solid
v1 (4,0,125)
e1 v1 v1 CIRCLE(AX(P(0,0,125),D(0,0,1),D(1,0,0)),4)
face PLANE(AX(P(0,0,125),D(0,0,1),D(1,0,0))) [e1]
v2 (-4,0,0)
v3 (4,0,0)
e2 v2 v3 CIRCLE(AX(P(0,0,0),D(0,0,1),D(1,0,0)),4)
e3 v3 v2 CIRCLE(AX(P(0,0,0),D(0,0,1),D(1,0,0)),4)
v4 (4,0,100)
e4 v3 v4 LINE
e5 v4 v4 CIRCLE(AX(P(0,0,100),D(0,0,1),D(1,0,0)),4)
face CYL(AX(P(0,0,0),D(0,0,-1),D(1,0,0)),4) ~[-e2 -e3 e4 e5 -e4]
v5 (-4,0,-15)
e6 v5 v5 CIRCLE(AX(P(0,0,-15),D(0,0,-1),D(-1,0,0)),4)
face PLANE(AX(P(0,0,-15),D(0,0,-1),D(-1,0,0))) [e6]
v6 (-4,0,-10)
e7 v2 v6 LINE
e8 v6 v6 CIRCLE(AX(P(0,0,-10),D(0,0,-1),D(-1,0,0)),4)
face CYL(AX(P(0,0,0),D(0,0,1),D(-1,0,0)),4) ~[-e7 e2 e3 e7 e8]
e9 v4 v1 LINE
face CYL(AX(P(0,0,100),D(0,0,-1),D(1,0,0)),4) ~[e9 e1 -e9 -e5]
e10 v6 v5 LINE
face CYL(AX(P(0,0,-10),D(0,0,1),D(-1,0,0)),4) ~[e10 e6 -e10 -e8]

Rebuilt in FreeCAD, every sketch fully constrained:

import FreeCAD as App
import Part
import Sketcher

doc = App.newDocument("Part")
body = doc.addObject("PartDesign::Body", "Body")

# Sketch on XY plane
sketch1 = doc.addObject("Sketcher::SketchObject", "Sketch")
body.addObject(sketch1)
sketch1.AttachmentSupport = (doc.XY_Plane, [""])
sketch1.MapMode = "FlatFace"
sketch1.addGeometry(Part.Circle(App.Vector(0, 0, 0), App.Vector(0, 0, 1), 4), False)
sketch1.addConstraint(Sketcher.Constraint("Coincident", 0, 3, -1, 1))
sketch1.addConstraint(Sketcher.Constraint("Diameter", 0, 8.0))
pad1 = doc.addObject("PartDesign::Pad", "Pad")
body.addObject(pad1)
pad1.Profile = sketch1
pad1.Length = 100

# Sketch on XY plane
sketch2 = doc.addObject("Sketcher::SketchObject", "Sketch001")
body.addObject(sketch2)
sketch2.AttachmentSupport = (doc.XY_Plane, [""])
sketch2.MapMode = "FlatFace"
sketch2.addGeometry(Part.Circle(App.Vector(0, 0, 0), App.Vector(0, 0, 1), 4), False)
sketch2.addConstraint(Sketcher.Constraint("Coincident", 0, 3, -1, 1))
sketch2.addConstraint(Sketcher.Constraint("Diameter", 0, 8.0))
pad2 = doc.addObject("PartDesign::Pad", "Pad001")
body.addObject(pad2)
pad2.Profile = sketch2
pad2.Length = 10
pad2.Reversed = True

# Sketch on XY plane
sketch3 = doc.addObject("Sketcher::SketchObject", "Sketch002")
body.addObject(sketch3)
sketch3.AttachmentSupport = (doc.XY_Plane, [""])
sketch3.MapMode = "FlatFace"
sketch3.AttachmentOffset = App.Placement(App.Vector(0, 0, 100), App.Rotation())
sketch3.addGeometry(Part.Circle(App.Vector(0, 0, 0), App.Vector(0, 0, 1), 4), False)
sketch3.addConstraint(Sketcher.Constraint("Coincident", 0, 3, -1, 1))
sketch3.addConstraint(Sketcher.Constraint("Diameter", 0, 8.0))
pad3 = doc.addObject("PartDesign::Pad", "Pad002")
body.addObject(pad3)
pad3.Profile = sketch3
pad3.Length = 25

# Sketch on XY plane
sketch4 = doc.addObject("Sketcher::SketchObject", "Sketch003")
body.addObject(sketch4)
sketch4.AttachmentSupport = (doc.XY_Plane, [""])
sketch4.MapMode = "FlatFace"
sketch4.AttachmentOffset = App.Placement(App.Vector(0, 0, -10), App.Rotation())
sketch4.addGeometry(Part.Circle(App.Vector(0, 0, 0), App.Vector(0, 0, 1), 4), False)
sketch4.addConstraint(Sketcher.Constraint("Coincident", 0, 3, -1, 1))
sketch4.addConstraint(Sketcher.Constraint("Diameter", 0, 8.0))
pad4 = doc.addObject("PartDesign::Pad", "Pad003")
body.addObject(pad4)
pad4.Profile = sketch4
pad4.Length = 5
pad4.Reversed = True

doc.recompute()
